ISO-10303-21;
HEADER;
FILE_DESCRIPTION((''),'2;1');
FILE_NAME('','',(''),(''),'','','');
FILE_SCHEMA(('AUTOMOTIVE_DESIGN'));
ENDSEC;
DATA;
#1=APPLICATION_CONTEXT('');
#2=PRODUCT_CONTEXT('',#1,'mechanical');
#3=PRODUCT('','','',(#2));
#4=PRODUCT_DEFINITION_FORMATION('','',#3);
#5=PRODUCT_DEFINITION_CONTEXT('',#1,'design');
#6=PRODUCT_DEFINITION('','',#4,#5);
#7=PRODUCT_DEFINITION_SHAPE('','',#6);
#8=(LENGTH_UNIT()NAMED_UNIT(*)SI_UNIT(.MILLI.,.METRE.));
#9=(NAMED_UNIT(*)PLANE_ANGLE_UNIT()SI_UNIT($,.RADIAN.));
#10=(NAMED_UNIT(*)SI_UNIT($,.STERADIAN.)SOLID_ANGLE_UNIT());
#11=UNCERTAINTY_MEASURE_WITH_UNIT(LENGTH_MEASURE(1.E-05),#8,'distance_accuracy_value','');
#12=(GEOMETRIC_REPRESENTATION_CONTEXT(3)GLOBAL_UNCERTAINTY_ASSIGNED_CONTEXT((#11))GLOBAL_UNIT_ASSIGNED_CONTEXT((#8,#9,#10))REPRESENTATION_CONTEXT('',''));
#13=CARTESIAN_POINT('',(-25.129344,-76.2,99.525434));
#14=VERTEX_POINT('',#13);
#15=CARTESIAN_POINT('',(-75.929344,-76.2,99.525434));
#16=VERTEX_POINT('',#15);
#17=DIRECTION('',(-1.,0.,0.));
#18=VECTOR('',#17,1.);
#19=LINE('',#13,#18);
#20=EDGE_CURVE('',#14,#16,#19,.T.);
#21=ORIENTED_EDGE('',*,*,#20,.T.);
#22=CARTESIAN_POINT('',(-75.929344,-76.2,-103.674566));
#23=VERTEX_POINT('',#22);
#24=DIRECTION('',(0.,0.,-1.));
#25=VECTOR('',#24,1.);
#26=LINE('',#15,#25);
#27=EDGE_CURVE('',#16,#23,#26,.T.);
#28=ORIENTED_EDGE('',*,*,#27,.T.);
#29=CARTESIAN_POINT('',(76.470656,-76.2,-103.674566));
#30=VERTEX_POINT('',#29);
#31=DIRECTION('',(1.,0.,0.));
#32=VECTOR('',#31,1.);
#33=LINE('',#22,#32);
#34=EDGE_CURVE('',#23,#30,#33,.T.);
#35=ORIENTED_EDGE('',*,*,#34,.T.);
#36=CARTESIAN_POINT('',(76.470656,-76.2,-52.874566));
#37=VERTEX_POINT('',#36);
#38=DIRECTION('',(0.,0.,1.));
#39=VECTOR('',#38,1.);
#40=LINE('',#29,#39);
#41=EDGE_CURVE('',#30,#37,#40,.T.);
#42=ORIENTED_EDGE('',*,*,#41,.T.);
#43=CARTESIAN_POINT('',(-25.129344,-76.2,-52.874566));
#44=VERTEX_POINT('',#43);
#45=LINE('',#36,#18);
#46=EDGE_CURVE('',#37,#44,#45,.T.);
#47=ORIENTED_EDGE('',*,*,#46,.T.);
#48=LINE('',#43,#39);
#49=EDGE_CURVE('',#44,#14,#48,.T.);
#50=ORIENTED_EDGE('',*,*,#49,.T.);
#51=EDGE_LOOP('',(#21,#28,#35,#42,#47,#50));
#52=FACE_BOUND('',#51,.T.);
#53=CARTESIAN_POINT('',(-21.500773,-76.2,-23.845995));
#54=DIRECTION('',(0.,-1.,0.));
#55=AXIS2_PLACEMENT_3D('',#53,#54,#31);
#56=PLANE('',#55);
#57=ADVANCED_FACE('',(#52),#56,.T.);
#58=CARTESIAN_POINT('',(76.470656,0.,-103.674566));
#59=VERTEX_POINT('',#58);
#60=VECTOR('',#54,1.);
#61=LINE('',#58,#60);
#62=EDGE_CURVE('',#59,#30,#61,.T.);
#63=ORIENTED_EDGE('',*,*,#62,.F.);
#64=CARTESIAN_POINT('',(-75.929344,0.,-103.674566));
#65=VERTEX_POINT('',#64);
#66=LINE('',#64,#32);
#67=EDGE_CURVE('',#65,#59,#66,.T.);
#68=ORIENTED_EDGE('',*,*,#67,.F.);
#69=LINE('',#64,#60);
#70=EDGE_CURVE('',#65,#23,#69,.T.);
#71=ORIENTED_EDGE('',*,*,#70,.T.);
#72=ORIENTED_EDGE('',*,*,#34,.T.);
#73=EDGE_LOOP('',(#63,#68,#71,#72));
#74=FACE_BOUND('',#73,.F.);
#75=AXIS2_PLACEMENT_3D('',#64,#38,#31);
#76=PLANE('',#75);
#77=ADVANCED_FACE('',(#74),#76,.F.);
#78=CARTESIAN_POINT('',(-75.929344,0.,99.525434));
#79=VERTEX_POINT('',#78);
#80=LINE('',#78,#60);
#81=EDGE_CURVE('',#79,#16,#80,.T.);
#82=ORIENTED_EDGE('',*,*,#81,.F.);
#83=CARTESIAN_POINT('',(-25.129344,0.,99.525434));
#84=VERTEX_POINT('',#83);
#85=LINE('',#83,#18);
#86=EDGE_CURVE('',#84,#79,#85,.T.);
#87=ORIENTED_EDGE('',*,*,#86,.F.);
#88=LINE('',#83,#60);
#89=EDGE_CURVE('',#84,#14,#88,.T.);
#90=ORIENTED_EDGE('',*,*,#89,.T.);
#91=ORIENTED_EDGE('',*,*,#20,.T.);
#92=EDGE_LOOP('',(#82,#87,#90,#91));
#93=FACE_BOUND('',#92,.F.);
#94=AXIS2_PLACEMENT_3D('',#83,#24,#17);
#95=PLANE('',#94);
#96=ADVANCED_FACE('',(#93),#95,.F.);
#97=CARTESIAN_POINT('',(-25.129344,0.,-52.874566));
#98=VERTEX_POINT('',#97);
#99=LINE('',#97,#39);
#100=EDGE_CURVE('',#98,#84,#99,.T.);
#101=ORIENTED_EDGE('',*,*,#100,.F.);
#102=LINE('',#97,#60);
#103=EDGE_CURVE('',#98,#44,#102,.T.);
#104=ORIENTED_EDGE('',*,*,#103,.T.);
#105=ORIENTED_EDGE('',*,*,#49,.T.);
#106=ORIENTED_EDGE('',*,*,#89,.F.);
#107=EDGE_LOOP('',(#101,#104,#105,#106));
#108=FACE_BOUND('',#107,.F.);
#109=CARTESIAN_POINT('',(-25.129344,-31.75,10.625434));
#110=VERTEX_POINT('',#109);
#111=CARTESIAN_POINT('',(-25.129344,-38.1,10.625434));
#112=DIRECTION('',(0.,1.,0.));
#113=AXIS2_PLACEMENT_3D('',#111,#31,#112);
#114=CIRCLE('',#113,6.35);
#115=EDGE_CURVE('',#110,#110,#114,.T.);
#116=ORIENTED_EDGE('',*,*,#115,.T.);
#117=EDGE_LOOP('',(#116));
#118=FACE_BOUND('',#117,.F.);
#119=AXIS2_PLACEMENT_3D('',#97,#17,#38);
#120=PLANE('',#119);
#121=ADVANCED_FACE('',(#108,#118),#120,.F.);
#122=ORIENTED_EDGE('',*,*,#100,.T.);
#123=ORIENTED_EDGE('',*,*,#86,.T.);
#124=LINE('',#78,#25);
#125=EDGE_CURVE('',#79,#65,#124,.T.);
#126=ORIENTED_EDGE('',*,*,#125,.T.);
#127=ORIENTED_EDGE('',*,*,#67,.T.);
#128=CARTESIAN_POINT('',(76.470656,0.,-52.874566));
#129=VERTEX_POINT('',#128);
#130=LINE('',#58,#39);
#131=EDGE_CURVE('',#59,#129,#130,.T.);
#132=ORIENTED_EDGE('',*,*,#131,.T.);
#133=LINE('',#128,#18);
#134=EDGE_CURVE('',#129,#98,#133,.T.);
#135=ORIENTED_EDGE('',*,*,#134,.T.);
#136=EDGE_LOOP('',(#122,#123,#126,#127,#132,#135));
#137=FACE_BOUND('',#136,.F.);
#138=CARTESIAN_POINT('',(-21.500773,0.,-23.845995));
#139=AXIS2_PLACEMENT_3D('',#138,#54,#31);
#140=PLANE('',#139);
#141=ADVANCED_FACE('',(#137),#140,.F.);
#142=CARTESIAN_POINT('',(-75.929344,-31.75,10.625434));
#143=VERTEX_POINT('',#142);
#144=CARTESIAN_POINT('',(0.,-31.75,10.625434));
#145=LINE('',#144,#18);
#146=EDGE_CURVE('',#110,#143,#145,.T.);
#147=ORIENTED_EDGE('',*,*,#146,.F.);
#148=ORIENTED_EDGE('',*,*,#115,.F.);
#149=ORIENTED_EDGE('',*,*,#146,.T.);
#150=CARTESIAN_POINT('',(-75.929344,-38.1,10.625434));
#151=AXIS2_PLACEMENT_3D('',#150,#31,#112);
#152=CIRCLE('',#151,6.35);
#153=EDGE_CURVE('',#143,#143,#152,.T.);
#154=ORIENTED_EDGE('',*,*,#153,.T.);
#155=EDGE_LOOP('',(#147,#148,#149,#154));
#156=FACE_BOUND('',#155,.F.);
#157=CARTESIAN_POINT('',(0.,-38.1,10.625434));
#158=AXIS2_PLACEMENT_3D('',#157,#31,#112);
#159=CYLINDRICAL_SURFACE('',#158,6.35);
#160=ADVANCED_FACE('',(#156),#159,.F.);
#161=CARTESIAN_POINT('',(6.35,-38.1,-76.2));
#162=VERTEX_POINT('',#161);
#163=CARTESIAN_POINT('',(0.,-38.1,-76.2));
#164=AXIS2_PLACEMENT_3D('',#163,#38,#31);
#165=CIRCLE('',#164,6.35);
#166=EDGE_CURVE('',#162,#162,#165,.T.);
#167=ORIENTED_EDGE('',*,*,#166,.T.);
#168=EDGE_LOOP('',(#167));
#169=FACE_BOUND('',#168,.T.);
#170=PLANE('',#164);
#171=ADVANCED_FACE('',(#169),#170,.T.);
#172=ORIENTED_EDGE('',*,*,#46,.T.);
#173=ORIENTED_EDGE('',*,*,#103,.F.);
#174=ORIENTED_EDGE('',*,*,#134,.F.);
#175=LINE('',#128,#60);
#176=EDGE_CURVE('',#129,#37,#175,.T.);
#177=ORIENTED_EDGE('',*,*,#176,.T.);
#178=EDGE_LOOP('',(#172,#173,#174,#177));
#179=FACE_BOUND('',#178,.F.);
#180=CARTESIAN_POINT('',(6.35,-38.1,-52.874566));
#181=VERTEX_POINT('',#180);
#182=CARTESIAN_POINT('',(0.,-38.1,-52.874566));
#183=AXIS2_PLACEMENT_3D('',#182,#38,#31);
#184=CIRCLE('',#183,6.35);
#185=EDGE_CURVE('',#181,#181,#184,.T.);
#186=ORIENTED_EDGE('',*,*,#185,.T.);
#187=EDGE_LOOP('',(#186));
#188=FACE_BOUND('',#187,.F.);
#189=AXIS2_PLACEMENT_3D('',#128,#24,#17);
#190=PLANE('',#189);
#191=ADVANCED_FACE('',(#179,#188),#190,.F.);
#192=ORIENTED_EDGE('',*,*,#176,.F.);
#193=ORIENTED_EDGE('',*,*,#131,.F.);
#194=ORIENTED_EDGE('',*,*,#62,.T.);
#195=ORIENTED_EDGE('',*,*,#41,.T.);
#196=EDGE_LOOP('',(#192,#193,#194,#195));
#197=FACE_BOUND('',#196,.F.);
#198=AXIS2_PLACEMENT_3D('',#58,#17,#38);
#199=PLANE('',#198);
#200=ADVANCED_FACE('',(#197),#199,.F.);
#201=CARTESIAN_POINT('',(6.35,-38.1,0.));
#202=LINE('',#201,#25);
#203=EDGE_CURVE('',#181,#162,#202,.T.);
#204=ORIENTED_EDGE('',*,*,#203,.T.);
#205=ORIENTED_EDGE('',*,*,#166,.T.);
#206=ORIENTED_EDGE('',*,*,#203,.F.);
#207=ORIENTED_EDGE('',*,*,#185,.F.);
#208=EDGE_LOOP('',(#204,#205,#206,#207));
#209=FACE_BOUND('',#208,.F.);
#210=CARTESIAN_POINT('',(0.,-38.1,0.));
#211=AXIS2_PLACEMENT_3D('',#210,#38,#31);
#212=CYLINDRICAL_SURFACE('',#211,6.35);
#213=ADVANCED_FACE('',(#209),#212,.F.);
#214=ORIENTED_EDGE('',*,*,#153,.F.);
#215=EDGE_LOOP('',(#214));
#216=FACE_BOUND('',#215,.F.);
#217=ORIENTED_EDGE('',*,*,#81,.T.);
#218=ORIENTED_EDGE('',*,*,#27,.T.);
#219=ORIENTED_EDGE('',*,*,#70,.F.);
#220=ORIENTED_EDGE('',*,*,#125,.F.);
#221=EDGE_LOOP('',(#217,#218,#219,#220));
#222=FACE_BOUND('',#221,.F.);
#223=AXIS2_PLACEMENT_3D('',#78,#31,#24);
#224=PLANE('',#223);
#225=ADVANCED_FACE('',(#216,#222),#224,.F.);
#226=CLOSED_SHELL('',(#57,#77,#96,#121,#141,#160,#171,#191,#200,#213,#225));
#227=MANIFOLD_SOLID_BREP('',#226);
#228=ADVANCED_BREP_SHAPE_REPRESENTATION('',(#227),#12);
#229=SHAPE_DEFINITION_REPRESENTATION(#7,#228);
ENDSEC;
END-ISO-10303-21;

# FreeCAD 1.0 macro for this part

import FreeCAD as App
import Part
import Sketcher

V = App.Vector
Q = App.Units.Quantity

doc = App.newDocument("Part")
body = doc.addObject("PartDesign::Body", "Body")

sketch1 = body.newObject("Sketcher::SketchObject", "Sketch")
sketch1.AttachmentSupport = (doc.getObject("XZ_Plane"), [""])
sketch1.MapMode = "FlatFace"
sketch1.addGeometry(Part.LineSegment(V(-25, 100, 0), V(-76, 100, 0)), False)
sketch1.addGeometry(Part.LineSegment(V(-76, 100, 0), V(-76, -104, 0)), False)
sketch1.addGeometry(Part.LineSegment(V(-76, -104, 0), V(76, -104, 0)), False)
sketch1.addGeometry(Part.LineSegment(V(76, -104, 0), V(76, -53, 0)), False)
sketch1.addGeometry(Part.LineSegment(V(76, -53, 0), V(-25, -53, 0)), False)
sketch1.addGeometry(Part.LineSegment(V(-25, -53, 0), V(-25, 100, 0)), False)
sketch1.addConstraint(Sketcher.Constraint("Coincident", 0, 2, 1, 1))
sketch1.addConstraint(Sketcher.Constraint("Coincident", 1, 2, 2, 1))
sketch1.addConstraint(Sketcher.Constraint("Coincident", 2, 2, 3, 1))
sketch1.addConstraint(Sketcher.Constraint("Coincident", 3, 2, 4, 1))
sketch1.addConstraint(Sketcher.Constraint("Coincident", 4, 2, 5, 1))
sketch1.addConstraint(Sketcher.Constraint("Coincident", 5, 2, 0, 1))
sketch1.addConstraint(Sketcher.Constraint("Horizontal", 0))
sketch1.addConstraint(Sketcher.Constraint("Vertical", 1))
sketch1.addConstraint(Sketcher.Constraint("Horizontal", 2))
sketch1.addConstraint(Sketcher.Constraint("Vertical", 3))
sketch1.addConstraint(Sketcher.Constraint("Horizontal", 4))
sketch1.addConstraint(Sketcher.Constraint("Vertical", 5))
sketch1.addConstraint(Sketcher.Constraint("Equal", 0, 3))
sketch1.addConstraint(Sketcher.Constraint("Equal", 2, 5))
sketch1.addConstraint(Sketcher.Constraint("DistanceX", 0, 2, 0, 1, Q("2 in")))
sketch1.addConstraint(Sketcher.Constraint("DistanceX", 2, 1, 2, 2, Q("6 in")))
sketch1.addConstraint(Sketcher.Constraint("DistanceX", 0, 2, -1, 1, 75.929344))
sketch1.addConstraint(Sketcher.Constraint("DistanceY", -1, 1, 0, 2, 99.525434))
pad1 = body.newObject("PartDesign::Pad", "Pad")
pad1.Profile = sketch1
pad1.Length = Q("3 in")

sketch2 = body.newObject("Sketcher::SketchObject", "Sketch001")
sketch2.AttachmentSupport = (doc.getObject("YZ_Plane"), [""])
sketch2.MapMode = "FlatFace"
sketch2.addGeometry(Part.Circle(V(-38, 11, 0), V(0, 0, 1), 6), False)
sketch2.addConstraint(Sketcher.Constraint("Diameter", 0, Q("0.5 in")))
sketch2.addConstraint(Sketcher.Constraint("DistanceX", 0, 3, -1, 1, Q("1.5 in")))
sketch2.addConstraint(Sketcher.Constraint("DistanceY", -1, 1, 0, 3, 10.625434))
pocket1 = body.newObject("PartDesign::Pocket", "Pocket")
pocket1.Profile = sketch2
pocket1.Length = Q("3 in")

sketch3 = body.newObject("Sketcher::SketchObject", "Sketch002")
sketch3.AttachmentSupport = (doc.getObject("XY_Plane"), [""])
sketch3.MapMode = "FlatFace"
sketch3.addGeometry(Part.Circle(V(0, -38, 0), V(0, 0, 1), 6), False)
sketch3.addConstraint(Sketcher.Constraint("PointOnObject", 0, 3, -2))
sketch3.addConstraint(Sketcher.Constraint("Diameter", 0, Q("0.5 in")))
sketch3.addConstraint(Sketcher.Constraint("DistanceY", 0, 3, -1, 1, Q("1.5 in")))
pocket2 = body.newObject("PartDesign::Pocket", "Pocket001")
pocket2.Profile = sketch3
pocket2.Length = Q("3 in")

doc.recompute()
